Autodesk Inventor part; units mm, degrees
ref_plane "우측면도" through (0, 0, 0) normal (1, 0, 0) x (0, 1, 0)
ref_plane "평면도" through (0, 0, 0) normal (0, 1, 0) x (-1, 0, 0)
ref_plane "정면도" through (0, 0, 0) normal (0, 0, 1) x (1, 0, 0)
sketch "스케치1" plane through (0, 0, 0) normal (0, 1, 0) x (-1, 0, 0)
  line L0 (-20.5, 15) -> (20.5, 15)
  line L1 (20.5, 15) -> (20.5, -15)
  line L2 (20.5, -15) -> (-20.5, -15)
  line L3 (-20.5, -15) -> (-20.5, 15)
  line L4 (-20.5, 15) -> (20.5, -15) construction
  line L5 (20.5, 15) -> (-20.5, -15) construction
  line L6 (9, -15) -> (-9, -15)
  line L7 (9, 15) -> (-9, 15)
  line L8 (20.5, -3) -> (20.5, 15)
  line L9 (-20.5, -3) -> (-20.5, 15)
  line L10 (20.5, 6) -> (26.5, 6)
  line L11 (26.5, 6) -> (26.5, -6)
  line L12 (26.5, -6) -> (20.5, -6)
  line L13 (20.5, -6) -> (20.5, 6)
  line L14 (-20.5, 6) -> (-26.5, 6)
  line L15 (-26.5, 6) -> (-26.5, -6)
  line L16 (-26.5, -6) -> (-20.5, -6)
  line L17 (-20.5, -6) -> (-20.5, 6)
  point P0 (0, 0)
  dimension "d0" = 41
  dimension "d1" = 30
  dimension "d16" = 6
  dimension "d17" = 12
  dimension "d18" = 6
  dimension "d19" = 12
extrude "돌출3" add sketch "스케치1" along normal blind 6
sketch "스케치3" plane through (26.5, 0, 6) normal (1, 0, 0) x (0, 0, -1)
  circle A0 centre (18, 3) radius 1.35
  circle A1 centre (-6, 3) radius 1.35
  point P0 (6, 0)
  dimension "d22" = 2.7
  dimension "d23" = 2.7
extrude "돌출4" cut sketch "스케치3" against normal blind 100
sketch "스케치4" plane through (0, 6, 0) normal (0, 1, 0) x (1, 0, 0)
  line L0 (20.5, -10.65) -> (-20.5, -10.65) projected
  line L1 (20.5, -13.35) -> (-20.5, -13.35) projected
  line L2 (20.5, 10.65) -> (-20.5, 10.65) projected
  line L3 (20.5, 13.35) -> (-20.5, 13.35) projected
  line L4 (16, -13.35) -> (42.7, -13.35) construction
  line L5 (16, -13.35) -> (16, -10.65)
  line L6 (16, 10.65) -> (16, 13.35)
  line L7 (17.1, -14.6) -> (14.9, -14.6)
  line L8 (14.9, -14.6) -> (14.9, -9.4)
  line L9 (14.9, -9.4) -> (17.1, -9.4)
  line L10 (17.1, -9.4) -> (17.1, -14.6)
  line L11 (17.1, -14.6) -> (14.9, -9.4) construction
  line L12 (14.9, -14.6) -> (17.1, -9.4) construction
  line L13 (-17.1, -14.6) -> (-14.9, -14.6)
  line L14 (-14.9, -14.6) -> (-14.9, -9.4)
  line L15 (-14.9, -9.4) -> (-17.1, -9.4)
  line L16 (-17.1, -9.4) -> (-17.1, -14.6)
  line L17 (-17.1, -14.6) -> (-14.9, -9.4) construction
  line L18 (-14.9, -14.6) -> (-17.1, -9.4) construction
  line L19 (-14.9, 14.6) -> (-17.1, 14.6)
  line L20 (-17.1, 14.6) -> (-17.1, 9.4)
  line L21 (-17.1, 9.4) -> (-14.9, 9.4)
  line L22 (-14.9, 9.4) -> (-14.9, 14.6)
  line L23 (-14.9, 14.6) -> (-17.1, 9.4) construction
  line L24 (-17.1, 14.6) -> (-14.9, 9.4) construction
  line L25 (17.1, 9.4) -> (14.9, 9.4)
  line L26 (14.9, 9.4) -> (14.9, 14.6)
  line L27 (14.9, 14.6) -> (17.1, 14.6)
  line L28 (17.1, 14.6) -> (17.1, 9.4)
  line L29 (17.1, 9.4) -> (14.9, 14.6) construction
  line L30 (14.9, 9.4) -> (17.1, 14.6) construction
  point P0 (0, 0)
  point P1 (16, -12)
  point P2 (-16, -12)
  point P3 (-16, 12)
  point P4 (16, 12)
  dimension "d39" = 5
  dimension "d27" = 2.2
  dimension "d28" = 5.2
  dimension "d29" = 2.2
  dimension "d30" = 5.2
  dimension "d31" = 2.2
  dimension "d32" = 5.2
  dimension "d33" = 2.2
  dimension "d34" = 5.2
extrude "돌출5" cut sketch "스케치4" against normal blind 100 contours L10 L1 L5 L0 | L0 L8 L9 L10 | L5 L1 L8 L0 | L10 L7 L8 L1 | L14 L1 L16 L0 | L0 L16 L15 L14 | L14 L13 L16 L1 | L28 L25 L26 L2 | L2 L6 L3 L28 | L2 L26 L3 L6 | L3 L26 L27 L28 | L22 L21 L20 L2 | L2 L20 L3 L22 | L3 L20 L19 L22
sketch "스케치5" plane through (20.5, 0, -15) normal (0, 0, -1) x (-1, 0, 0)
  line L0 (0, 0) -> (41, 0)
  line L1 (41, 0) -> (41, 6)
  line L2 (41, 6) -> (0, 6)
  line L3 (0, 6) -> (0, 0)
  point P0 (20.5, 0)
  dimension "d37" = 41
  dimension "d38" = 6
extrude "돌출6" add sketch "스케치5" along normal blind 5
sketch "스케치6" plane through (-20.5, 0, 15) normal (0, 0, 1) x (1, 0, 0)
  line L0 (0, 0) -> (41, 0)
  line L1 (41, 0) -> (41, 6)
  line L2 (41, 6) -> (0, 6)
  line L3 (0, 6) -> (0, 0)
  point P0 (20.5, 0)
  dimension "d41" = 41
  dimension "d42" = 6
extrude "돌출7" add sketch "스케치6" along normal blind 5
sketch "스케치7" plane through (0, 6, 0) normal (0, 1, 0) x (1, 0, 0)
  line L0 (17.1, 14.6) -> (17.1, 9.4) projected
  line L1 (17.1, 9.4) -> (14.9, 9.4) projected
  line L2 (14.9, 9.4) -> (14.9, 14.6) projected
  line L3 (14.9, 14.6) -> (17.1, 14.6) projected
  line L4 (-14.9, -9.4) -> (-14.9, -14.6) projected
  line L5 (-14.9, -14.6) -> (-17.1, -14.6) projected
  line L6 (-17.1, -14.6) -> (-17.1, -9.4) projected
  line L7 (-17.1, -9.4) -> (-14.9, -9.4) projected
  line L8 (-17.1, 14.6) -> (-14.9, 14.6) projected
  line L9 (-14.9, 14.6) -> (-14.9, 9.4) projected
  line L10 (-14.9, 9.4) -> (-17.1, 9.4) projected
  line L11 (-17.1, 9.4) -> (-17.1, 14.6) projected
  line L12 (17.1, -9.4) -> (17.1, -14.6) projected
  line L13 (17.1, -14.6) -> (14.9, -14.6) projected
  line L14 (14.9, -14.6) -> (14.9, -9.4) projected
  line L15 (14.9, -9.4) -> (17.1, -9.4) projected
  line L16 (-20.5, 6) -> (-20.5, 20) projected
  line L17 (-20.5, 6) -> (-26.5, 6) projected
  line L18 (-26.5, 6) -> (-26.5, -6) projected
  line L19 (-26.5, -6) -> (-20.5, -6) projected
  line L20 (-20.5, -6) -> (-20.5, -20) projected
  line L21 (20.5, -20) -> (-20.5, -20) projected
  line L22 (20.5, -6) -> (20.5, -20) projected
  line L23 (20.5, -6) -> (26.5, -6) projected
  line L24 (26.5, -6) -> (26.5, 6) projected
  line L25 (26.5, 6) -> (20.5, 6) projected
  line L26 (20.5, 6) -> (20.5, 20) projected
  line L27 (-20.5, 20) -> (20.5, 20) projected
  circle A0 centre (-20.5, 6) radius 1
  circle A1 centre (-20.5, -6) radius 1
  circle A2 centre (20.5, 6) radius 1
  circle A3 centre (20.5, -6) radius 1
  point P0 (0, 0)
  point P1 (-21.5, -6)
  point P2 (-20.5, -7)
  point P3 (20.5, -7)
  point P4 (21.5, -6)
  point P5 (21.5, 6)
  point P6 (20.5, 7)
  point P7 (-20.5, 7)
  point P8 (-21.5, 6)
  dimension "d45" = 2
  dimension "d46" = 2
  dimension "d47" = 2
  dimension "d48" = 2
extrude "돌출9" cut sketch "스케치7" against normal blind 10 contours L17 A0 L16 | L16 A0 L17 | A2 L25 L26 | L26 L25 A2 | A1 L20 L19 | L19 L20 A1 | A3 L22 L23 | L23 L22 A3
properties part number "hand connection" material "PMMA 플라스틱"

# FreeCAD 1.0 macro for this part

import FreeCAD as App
import Part
import Sketcher
from FreeCAD import Vector
Q = App.Units.Quantity

doc = App.newDocument("Part")
body = doc.addObject("PartDesign::Body", "Body")

# Sketch on XZ plane
sketch1 = doc.addObject("Sketcher::SketchObject", "Sketch")
body.addObject(sketch1)
sketch1.AttachmentSupport = (doc.XZ_Plane, [""])
sketch1.MapMode = "FlatFace"
sketch1.addGeometry([
    Part.LineSegment(Vector(20, 15, 0), Vector(20, 6, 0)),  # 0
    Part.LineSegment(Vector(20, 6, 0), Vector(26, 6, 0)),  # 1
    Part.LineSegment(Vector(26, 6, 0), Vector(26, -6, 0)),  # 2
    Part.LineSegment(Vector(26, -6, 0), Vector(20, -6, 0)),  # 3
    Part.LineSegment(Vector(20, -6, 0), Vector(20, -15, 0)),  # 4
    Part.LineSegment(Vector(20, -15, 0), Vector(-20, -15, 0)),  # 5
    Part.LineSegment(Vector(-20, -15, 0), Vector(-20, -6, 0)),  # 6
    Part.LineSegment(Vector(-20, -6, 0), Vector(-26, -6, 0)),  # 7
    Part.LineSegment(Vector(-26, -6, 0), Vector(-26, 6, 0)),  # 8
    Part.LineSegment(Vector(-26, 6, 0), Vector(-20, 6, 0)),  # 9
    Part.LineSegment(Vector(-20, 6, 0), Vector(-20, 15, 0)),  # 10
    Part.LineSegment(Vector(-20, 15, 0), Vector(20, 15, 0)),  # 11
], False)
sketch1.addConstraint([
    Sketcher.Constraint("Coincident", 0, 2, 1, 1),
    Sketcher.Constraint("Coincident", 1, 2, 2, 1),
    Sketcher.Constraint("Coincident", 2, 2, 3, 1),
    Sketcher.Constraint("Coincident", 3, 2, 4, 1),
    Sketcher.Constraint("Coincident", 4, 2, 5, 1),
    Sketcher.Constraint("Coincident", 5, 2, 6, 1),
    Sketcher.Constraint("Coincident", 6, 2, 7, 1),
    Sketcher.Constraint("Coincident", 7, 2, 8, 1),
    Sketcher.Constraint("Coincident", 8, 2, 9, 1),
    Sketcher.Constraint("Coincident", 9, 2, 10, 1),
    Sketcher.Constraint("Coincident", 10, 2, 11, 1),
    Sketcher.Constraint("Coincident", 11, 2, 0, 1),
    Sketcher.Constraint("Vertical", 0),
    Sketcher.Constraint("Horizontal", 1),
    Sketcher.Constraint("Vertical", 2),
    Sketcher.Constraint("Horizontal", 3),
    Sketcher.Constraint("Vertical", 4),
    Sketcher.Constraint("Horizontal", 5),
    Sketcher.Constraint("Vertical", 6),
    Sketcher.Constraint("Horizontal", 7),
    Sketcher.Constraint("Vertical", 8),
    Sketcher.Constraint("Horizontal", 9),
    Sketcher.Constraint("Vertical", 10),
    Sketcher.Constraint("Horizontal", 11),
    Sketcher.Constraint("Symmetric", 0, 2, 6, 2, -1, 1),
    Sketcher.Constraint("Symmetric", 2, 2, 8, 2, -1, 1),
    Sketcher.Constraint("Symmetric", 4, 2, 10, 2, -1, 1),
    Sketcher.Constraint("Symmetric", 3, 2, 6, 2, -2),
    Sketcher.Constraint("DistanceX", 1, 1, 1, 2, Q("6 mm")),
    Sketcher.Constraint("DistanceX", 5, 2, 5, 1, Q("41 mm")),
    Sketcher.Constraint("DistanceY", 2, 2, 2, 1, Q("12 mm")),
    Sketcher.Constraint("DistanceY", 5, 2, 10, 2, Q("30 mm")),
])
pad1 = doc.addObject("PartDesign::Pad", "Pad")
body.addObject(pad1)
pad1.Profile = sketch1
pad1.Length = 6
pad1.Reversed = True

# Sketch on YZ plane
sketch2 = doc.addObject("Sketcher::SketchObject", "Sketch001")
body.addObject(sketch2)
sketch2.AttachmentSupport = (doc.YZ_Plane, [""])
sketch2.MapMode = "FlatFace"
sketch2.AttachmentOffset = App.Placement(Vector(0, 0, 26.5), App.Rotation())
sketch2.addGeometry([
    Part.Circle(Vector(3, -12, 0), Vector(0, 0, 1), 1.4),
    Part.Circle(Vector(3, 12, 0), Vector(0, 0, 1), 1.4),
], False)
sketch2.addConstraint([
    Sketcher.Constraint("Equal", 0, 1),
    Sketcher.Constraint("Symmetric", 0, 3, 1, 3, -1),
    Sketcher.Constraint("Diameter", 0, Q("2.7 mm")),
    Sketcher.Constraint("DistanceX", -1, 1, 0, 3, Q("3 mm")),
    Sketcher.Constraint("DistanceY", 0, 3, -1, 1, Q("12 mm")),
])
pocket1 = doc.addObject("PartDesign::Pocket", "Pocket")
body.addObject(pocket1)
pocket1.Profile = sketch2
pocket1.Length = 100

# Sketch on XZ plane
sketch3 = doc.addObject("Sketcher::SketchObject", "Sketch002")
body.addObject(sketch3)
sketch3.AttachmentSupport = (doc.XZ_Plane, [""])
sketch3.MapMode = "FlatFace"
sketch3.AttachmentOffset = App.Placement(Vector(0, 0, -6), App.Rotation())
sketch3.addGeometry([
    Part.LineSegment(Vector(17.1, 9.4, 0), Vector(14.9, 9.4, 0)),  # 0
    Part.LineSegment(Vector(14.9, 9.4, 0), Vector(14.9, 14.6, 0)),  # 1
    Part.LineSegment(Vector(14.9, 14.6, 0), Vector(17.1, 14.6, 0)),  # 2
    Part.LineSegment(Vector(17.1, 14.6, 0), Vector(17.1, 9.4, 0)),  # 3
    Part.LineSegment(Vector(-14.9, 9.4, 0), Vector(-17.1, 9.4, 0)),  # 4
    Part.LineSegment(Vector(-17.1, 9.4, 0), Vector(-17.1, 14.6, 0)),  # 5
    Part.LineSegment(Vector(-17.1, 14.6, 0), Vector(-14.9, 14.6, 0)),  # 6
    Part.LineSegment(Vector(-14.9, 14.6, 0), Vector(-14.9, 9.4, 0)),  # 7
    Part.LineSegment(Vector(17.1, -9.4, 0), Vector(17.1, -14.6, 0)),  # 8
    Part.LineSegment(Vector(17.1, -14.6, 0), Vector(14.9, -14.6, 0)),  # 9
    Part.LineSegment(Vector(14.9, -14.6, 0), Vector(14.9, -9.4, 0)),  # 10
    Part.LineSegment(Vector(14.9, -9.4, 0), Vector(17.1, -9.4, 0)),  # 11
    Part.LineSegment(Vector(-14.9, -9.4, 0), Vector(-14.9, -14.6, 0)),  # 12
    Part.LineSegment(Vector(-14.9, -14.6, 0), Vector(-17.1, -14.6, 0)),  # 13
    Part.LineSegment(Vector(-17.1, -14.6, 0), Vector(-17.1, -9.4, 0)),  # 14
    Part.LineSegment(Vector(-17.1, -9.4, 0), Vector(-14.9, -9.4, 0)),  # 15
], False)
sketch3.addConstraint([
    Sketcher.Constraint("Coincident", 0, 2, 1, 1),
    Sketcher.Constraint("Coincident", 1, 2, 2, 1),
    Sketcher.Constraint("Coincident", 2, 2, 3, 1),
    Sketcher.Constraint("Coincident", 3, 2, 0, 1),
    Sketcher.Constraint("Coincident", 4, 2, 5, 1),
    Sketcher.Constraint("Coincident", 5, 2, 6, 1),
    Sketcher.Constraint("Coincident", 6, 2, 7, 1),
    Sketcher.Constraint("Coincident", 7, 2, 4, 1),
    Sketcher.Constraint("Coincident", 8, 2, 9, 1),
    Sketcher.Constraint("Coincident", 9, 2, 10, 1),
    Sketcher.Constraint("Coincident", 10, 2, 11, 1),
    Sketcher.Constraint("Coincident", 11, 2, 8, 1),
    Sketcher.Constraint("Coincident", 12, 2, 13, 1),
    Sketcher.Constraint("Coincident", 13, 2, 14, 1),
    Sketcher.Constraint("Coincident", 14, 2, 15, 1),
    Sketcher.Constraint("Coincident", 15, 2, 12, 1),
    Sketcher.Constraint("Horizontal", 0),
    Sketcher.Constraint("Vertical", 1),
    Sketcher.Constraint("Horizontal", 2),
    Sketcher.Constraint("Vertical", 3),
    Sketcher.Constraint("Horizontal", 4),
    Sketcher.Constraint("Vertical", 5),
    Sketcher.Constraint("Horizontal", 6),
    Sketcher.Constraint("Vertical", 7),
    Sketcher.Constraint("Vertical", 8),
    Sketcher.Constraint("Horizontal", 9),
    Sketcher.Constraint("Vertical", 10),
    Sketcher.Constraint("Horizontal", 11),
    Sketcher.Constraint("Vertical", 12),
    Sketcher.Constraint("Horizontal", 13),
    Sketcher.Constraint("Vertical", 14),
    Sketcher.Constraint("Horizontal", 15),
    Sketcher.Constraint("Symmetric", 5, 2, 8, 2, -1, 1),
    Sketcher.Constraint("Symmetric", 7, 2, 10, 2, -1, 1),
    Sketcher.Constraint("Symmetric", 1, 2, 12, 2, -1, 1),
    Sketcher.Constraint("Symmetric", 3, 2, 14, 2, -1, 1),
    Sketcher.Constraint("Symmetric", 3, 2, 4, 2, -2),
    Sketcher.Constraint("Symmetric", 1, 2, 6, 2, -2),
    Sketcher.Constraint("DistanceX", 0, 2, 0, 1, Q("2.2 mm")),
    Sketcher.Constraint("DistanceY", 1, 1, 1, 2, Q("5.2 mm")),
    Sketcher.Constraint("DistanceX", 4, 2, 0, 2, Q("32 mm")),
    Sketcher.Constraint("DistanceY", 8, 2, 3, 2, Q("24 mm")),
])
pocket2 = doc.addObject("PartDesign::Pocket", "Pocket001")
body.addObject(pocket2)
pocket2.Profile = sketch3
pocket2.Length = 100
pocket2.Reversed = True

# Sketch on XY plane
sketch4 = doc.addObject("Sketcher::SketchObject", "Sketch003")
body.addObject(sketch4)
sketch4.AttachmentSupport = (doc.XY_Plane, [""])
sketch4.MapMode = "FlatFace"
sketch4.AttachmentOffset = App.Placement(Vector(0, 0, -15), App.Rotation())
sketch4.addGeometry([
    Part.LineSegment(Vector(20, 6, 0), Vector(20, 0, 0)),
    Part.LineSegment(Vector(20, 0, 0), Vector(-20, 0, 0)),
    Part.LineSegment(Vector(-20, 0, 0), Vector(-20, 6, 0)),
    Part.LineSegment(Vector(-20, 6, 0), Vector(20, 6, 0)),
], False)
sketch4.addConstraint([
    Sketcher.Constraint("Coincident", 0, 2, 1, 1),
    Sketcher.Constraint("Coincident", 1, 2, 2, 1),
    Sketcher.Constraint("Coincident", 2, 2, 3, 1),
    Sketcher.Constraint("Coincident", 3, 2, 0, 1),
    Sketcher.Constraint("Vertical", 0),
    Sketcher.Constraint("Horizontal", 1),
    Sketcher.Constraint("Vertical", 2),
    Sketcher.Constraint("Horizontal", 3),
    Sketcher.Constraint("Symmetric", 0, 2, 1, 2, -1, 1),
    Sketcher.Constraint("DistanceX", 1, 2, 1, 1, Q("41 mm")),
    Sketcher.Constraint("DistanceY", 0, 2, 0, 1, Q("6 mm")),
])
pad2 = doc.addObject("PartDesign::Pad", "Pad001")
body.addObject(pad2)
pad2.Profile = sketch4
pad2.Length = 5
pad2.Reversed = True

# Sketch on XY plane
sketch5 = doc.addObject("Sketcher::SketchObject", "Sketch004")
body.addObject(sketch5)
sketch5.AttachmentSupport = (doc.XY_Plane, [""])
sketch5.MapMode = "FlatFace"
sketch5.AttachmentOffset = App.Placement(Vector(0, 0, 15), App.Rotation())
sketch5.addGeometry([
    Part.LineSegment(Vector(-20, 6, 0), Vector(-20, 0, 0)),
    Part.LineSegment(Vector(-20, 0, 0), Vector(20, 0, 0)),
    Part.LineSegment(Vector(20, 0, 0), Vector(20, 6, 0)),
    Part.LineSegment(Vector(20, 6, 0), Vector(-20, 6, 0)),
], False)
sketch5.addConstraint([
    Sketcher.Constraint("Coincident", 0, 2, 1, 1),
    Sketcher.Constraint("Coincident", 1, 2, 2, 1),
    Sketcher.Constraint("Coincident", 2, 2, 3, 1),
    Sketcher.Constraint("Coincident", 3, 2, 0, 1),
    Sketcher.Constraint("Vertical", 0),
    Sketcher.Constraint("Horizontal", 1),
    Sketcher.Constraint("Vertical", 2),
    Sketcher.Constraint("Horizontal", 3),
    Sketcher.Constraint("Symmetric", 0, 2, 1, 2, -1, 1),
    Sketcher.Constraint("DistanceX", 1, 1, 1, 2, Q("41 mm")),
    Sketcher.Constraint("DistanceY", 0, 2, 0, 1, Q("6 mm")),
])
pad3 = doc.addObject("PartDesign::Pad", "Pad002")
body.addObject(pad3)
pad3.Profile = sketch5
pad3.Length = 5

# Sketch on XZ plane
sketch6 = doc.addObject("Sketcher::SketchObject", "Sketch005")
body.addObject(sketch6)
sketch6.AttachmentSupport = (doc.XZ_Plane, [""])
sketch6.MapMode = "FlatFace"
sketch6.AttachmentOffset = App.Placement(Vector(0, 0, -6), App.Rotation())
sketch6.addGeometry([
    Part.Circle(Vector(-20.5, -6, 0), Vector(0, 0, 1), 1),
    Part.Circle(Vector(20.5, -6, 0), Vector(0, 0, 1), 1),
    Part.Circle(Vector(-20.5, 6, 0), Vector(0, 0, 1), 1),
    Part.Circle(Vector(20.5, 6, 0), Vector(0, 0, 1), 1),
], False)
sketch6.addConstraint([
    Sketcher.Constraint("Equal", 0, 1),
    Sketcher.Constraint("Equal", 1, 2),
    Sketcher.Constraint("Equal", 2, 3),
    Sketcher.Constraint("Symmetric", 1, 3, 2, 3, -1, 1),
    Sketcher.Constraint("Symmetric", 0, 3, 3, 3, -1, 1),
    Sketcher.Constraint("Symmetric", 0, 3, 1, 3, -2),
    Sketcher.Constraint("Diameter", 0, Q("2 mm")),
    Sketcher.Constraint("DistanceY", 0, 3, -1, 1, Q("6 mm")),
    Sketcher.Constraint("DistanceX", 0, 3, 1, 3, Q("41 mm")),
])
pocket3 = doc.addObject("PartDesign::Pocket", "Pocket002")
body.addObject(pocket3)
pocket3.Profile = sketch6
pocket3.Length = 10
pocket3.Reversed = True

doc.recompute()
